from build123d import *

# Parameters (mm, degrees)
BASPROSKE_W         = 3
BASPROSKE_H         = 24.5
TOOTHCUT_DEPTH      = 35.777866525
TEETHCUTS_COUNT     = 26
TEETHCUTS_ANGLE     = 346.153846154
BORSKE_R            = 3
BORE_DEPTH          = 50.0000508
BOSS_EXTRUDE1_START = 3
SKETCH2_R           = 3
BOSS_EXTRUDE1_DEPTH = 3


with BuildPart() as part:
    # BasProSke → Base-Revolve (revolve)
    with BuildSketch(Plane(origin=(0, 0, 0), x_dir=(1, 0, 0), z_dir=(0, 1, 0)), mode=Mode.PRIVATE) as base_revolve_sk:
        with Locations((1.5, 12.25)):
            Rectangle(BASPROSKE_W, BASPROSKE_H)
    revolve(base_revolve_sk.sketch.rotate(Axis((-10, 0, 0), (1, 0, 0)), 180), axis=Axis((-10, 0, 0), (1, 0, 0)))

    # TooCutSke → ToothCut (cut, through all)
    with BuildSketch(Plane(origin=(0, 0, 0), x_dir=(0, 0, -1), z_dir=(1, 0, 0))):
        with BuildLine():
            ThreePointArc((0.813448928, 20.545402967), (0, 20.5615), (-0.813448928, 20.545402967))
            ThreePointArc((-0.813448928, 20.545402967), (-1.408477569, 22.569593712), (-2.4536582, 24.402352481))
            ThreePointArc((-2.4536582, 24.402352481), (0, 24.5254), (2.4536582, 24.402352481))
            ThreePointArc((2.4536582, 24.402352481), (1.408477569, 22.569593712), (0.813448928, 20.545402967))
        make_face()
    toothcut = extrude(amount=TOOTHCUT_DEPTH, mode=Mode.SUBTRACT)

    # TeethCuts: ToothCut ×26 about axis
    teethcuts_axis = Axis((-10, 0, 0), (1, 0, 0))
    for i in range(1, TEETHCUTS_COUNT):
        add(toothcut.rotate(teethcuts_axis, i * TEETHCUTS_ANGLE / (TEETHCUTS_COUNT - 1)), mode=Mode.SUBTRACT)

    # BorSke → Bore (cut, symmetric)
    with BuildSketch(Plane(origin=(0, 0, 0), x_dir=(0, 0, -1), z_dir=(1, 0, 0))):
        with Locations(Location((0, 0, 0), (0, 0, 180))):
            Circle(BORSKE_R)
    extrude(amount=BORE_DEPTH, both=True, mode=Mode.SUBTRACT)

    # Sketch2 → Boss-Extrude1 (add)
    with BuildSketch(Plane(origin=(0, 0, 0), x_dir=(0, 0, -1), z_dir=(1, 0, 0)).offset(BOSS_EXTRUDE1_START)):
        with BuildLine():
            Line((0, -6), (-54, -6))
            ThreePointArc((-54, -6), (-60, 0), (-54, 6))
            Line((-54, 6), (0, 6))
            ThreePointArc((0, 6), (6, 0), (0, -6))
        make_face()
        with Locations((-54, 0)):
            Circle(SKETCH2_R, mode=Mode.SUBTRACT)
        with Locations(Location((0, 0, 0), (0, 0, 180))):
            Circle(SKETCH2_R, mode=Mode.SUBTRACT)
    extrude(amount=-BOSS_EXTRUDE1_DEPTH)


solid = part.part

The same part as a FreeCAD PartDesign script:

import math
import FreeCAD as App
import Part
import Sketcher

V = App.Vector


def add_polygon(sketch, points):
    """Adds a closed chain of lines whose ends are joined by coincident constraints."""
    first, n = sketch.GeometryCount, len(points)
    for a, b in zip(points, points[1:] + points[:1]):
        sketch.addGeometry(Part.LineSegment(App.Vector(*a, 0), App.Vector(*b, 0)), False)
    for i in range(n):
        sketch.addConstraint(Sketcher.Constraint("Coincident", first + i, 2, first + (i + 1) % n, 1))

doc = App.newDocument("Part")
body = doc.addObject("PartDesign::Body", "Body")

sketch1 = doc.addObject("Sketcher::SketchObject", "Sketch")
body.addObject(sketch1)
sketch1.AttachmentSupport = (doc.XZ_Plane, [""])
sketch1.MapMode = "FlatFace"
add_polygon(sketch1, [(0, -24.5), (0, 0), (3, 0), (3, -24.5)])
sketch1.addConstraint([
    Sketcher.Constraint("Vertical", 0),
    Sketcher.Constraint("Horizontal", 1),
    Sketcher.Constraint("Vertical", 2),
    Sketcher.Constraint("Horizontal", 3),
    Sketcher.Constraint("Coincident", 0, 2, -1, 1),
    Sketcher.Constraint("DistanceX", 1, 1, 1, 2, 3.0),
    Sketcher.Constraint("DistanceY", 0, 1, 0, 2, 24.5),
])
revolution = doc.addObject("PartDesign::Revolution", "Revolution")
body.addObject(revolution)
revolution.Profile = sketch1
revolution.ReferenceAxis = (sketch1, ["H_Axis"])
revolution.Angle = 360

sketch2 = doc.addObject("Sketcher::SketchObject", "Sketch001")
body.addObject(sketch2)
sketch2.AttachmentSupport = (doc.YZ_Plane, [""])
sketch2.MapMode = "FlatFace"
sketch2.addGeometry([
    Part.ArcOfCircle(Part.Circle(V(0, 0, 0), V(0, 0, 1), 20.6), math.radians(-2.27), math.radians(2.27)),
    Part.ArcOfCircle(Part.Circle(V(19, -9.8, 0), V(0, 0, 1), 9.1), math.radians(54), math.radians(80)),
    Part.ArcOfCircle(Part.Circle(V(0, 0, 0), V(0, 0, 1), 24.5), math.radians(-5.74), math.radians(5.74)),
    Part.ArcOfCircle(Part.Circle(V(19, 9.8, 0), V(0, 0, 1), 9.1), math.radians(-80), math.radians(-54)),
], False)
sketch2.addConstraint([
    Sketcher.Constraint("Coincident", 0, 1, 1, 2),
    Sketcher.Constraint("Coincident", 1, 1, 2, 1),
    Sketcher.Constraint("Coincident", 2, 2, 3, 2),
    Sketcher.Constraint("Coincident", 3, 1, 0, 2),
    Sketcher.Constraint("Coincident", 0, 3, -1, 1),
    Sketcher.Constraint("Coincident", 2, 3, -1, 1),
    Sketcher.Constraint("Equal", 1, 3),
    Sketcher.Constraint("Symmetric", 1, 3, 3, 3, -1),
    Sketcher.Constraint("Radius", 1, 9.1),
    Sketcher.Constraint("Radius", 0, 20.5615),
    Sketcher.Constraint("Radius", 2, 24.5254),
    Sketcher.Constraint("DistanceY", 0, 1, -1, 1, 0.813449),
    Sketcher.Constraint("DistanceY", 1, 1, -1, 1, 2.453658),
])
pocket1 = doc.addObject("PartDesign::Pocket", "Pocket")
body.addObject(pocket1)
pocket1.Profile = sketch2
pocket1.Type = "ThroughAll"
pocket1.Reversed = True
doc.recompute()

polarpattern = doc.addObject("PartDesign::PolarPattern", "PolarPattern")
body.addObject(polarpattern)
polarpattern.Originals = [pocket1]
polarpattern.Axis = (doc.X_Axis, [""])
polarpattern.Angle = 360
polarpattern.Occurrences = 26
body.Tip = polarpattern

sketch3 = doc.addObject("Sketcher::SketchObject", "Sketch002")
body.addObject(sketch3)
sketch3.AttachmentSupport = (doc.YZ_Plane, [""])
sketch3.MapMode = "FlatFace"
sketch3.addGeometry(Part.Circle(V(0, 0, 0), V(0, 0, 1), 3), False)
sketch3.addConstraint([
    Sketcher.Constraint("Coincident", 0, 3, -1, 1),
    Sketcher.Constraint("Diameter", 0, 6.0),
])
pocket2 = doc.addObject("PartDesign::Pocket", "Pocket001")
body.addObject(pocket2)
pocket2.Profile = sketch3
pocket2.Length = 100.000102
pocket2.Midplane = True

sketch4 = doc.addObject("Sketcher::SketchObject", "Sketch003")
body.addObject(sketch4)
sketch4.AttachmentSupport = (doc.YZ_Plane, [""])
sketch4.MapMode = "FlatFace"
sketch4.AttachmentOffset = App.Placement(V(0, 0, 3), App.Rotation())
sketch4.addGeometry([
    Part.LineSegment(V(-6, 54, 0), V(-6, 0, 0)),
    Part.ArcOfCircle(Part.Circle(V(0, 0, 0), V(0, 0, 1), 6), math.radians(180), math.radians(360)),
    Part.LineSegment(V(6, 0, 0), V(6, 54, 0)),
    Part.ArcOfCircle(Part.Circle(V(0, 54, 0), V(0, 0, 1), 6), math.radians(0), math.radians(180)),
    Part.Circle(V(0, 0, 0), V(0, 0, 1), 3),
    Part.Circle(V(0, 54, 0), V(0, 0, 1), 3),
], False)
sketch4.addConstraint([
    Sketcher.Constraint("Tangent", 0, 2, 1, 1),
    Sketcher.Constraint("Tangent", 1, 2, 2, 1),
    Sketcher.Constraint("Tangent", 2, 2, 3, 1),
    Sketcher.Constraint("Tangent", 3, 2, 0, 1),
    Sketcher.Constraint("Vertical", 0),
    Sketcher.Constraint("Vertical", 2),
    Sketcher.Constraint("Coincident", 1, 3, -1, 1),
    Sketcher.Constraint("Coincident", 4, 3, -1, 1),
    Sketcher.Constraint("Coincident", 5, 3, 3, 3),
    Sketcher.Constraint("Equal", 4, 5),
    Sketcher.Constraint("Diameter", 4, 6.0),
    Sketcher.Constraint("Radius", 1, 6.0),
    Sketcher.Constraint("DistanceY", 0, 2, 0, 1, 54.0),
])
pad1 = doc.addObject("PartDesign::Pad", "Pad")
body.addObject(pad1)
pad1.Profile = sketch4
pad1.Length = 3
pad1.Reversed = True

doc.recompute()
